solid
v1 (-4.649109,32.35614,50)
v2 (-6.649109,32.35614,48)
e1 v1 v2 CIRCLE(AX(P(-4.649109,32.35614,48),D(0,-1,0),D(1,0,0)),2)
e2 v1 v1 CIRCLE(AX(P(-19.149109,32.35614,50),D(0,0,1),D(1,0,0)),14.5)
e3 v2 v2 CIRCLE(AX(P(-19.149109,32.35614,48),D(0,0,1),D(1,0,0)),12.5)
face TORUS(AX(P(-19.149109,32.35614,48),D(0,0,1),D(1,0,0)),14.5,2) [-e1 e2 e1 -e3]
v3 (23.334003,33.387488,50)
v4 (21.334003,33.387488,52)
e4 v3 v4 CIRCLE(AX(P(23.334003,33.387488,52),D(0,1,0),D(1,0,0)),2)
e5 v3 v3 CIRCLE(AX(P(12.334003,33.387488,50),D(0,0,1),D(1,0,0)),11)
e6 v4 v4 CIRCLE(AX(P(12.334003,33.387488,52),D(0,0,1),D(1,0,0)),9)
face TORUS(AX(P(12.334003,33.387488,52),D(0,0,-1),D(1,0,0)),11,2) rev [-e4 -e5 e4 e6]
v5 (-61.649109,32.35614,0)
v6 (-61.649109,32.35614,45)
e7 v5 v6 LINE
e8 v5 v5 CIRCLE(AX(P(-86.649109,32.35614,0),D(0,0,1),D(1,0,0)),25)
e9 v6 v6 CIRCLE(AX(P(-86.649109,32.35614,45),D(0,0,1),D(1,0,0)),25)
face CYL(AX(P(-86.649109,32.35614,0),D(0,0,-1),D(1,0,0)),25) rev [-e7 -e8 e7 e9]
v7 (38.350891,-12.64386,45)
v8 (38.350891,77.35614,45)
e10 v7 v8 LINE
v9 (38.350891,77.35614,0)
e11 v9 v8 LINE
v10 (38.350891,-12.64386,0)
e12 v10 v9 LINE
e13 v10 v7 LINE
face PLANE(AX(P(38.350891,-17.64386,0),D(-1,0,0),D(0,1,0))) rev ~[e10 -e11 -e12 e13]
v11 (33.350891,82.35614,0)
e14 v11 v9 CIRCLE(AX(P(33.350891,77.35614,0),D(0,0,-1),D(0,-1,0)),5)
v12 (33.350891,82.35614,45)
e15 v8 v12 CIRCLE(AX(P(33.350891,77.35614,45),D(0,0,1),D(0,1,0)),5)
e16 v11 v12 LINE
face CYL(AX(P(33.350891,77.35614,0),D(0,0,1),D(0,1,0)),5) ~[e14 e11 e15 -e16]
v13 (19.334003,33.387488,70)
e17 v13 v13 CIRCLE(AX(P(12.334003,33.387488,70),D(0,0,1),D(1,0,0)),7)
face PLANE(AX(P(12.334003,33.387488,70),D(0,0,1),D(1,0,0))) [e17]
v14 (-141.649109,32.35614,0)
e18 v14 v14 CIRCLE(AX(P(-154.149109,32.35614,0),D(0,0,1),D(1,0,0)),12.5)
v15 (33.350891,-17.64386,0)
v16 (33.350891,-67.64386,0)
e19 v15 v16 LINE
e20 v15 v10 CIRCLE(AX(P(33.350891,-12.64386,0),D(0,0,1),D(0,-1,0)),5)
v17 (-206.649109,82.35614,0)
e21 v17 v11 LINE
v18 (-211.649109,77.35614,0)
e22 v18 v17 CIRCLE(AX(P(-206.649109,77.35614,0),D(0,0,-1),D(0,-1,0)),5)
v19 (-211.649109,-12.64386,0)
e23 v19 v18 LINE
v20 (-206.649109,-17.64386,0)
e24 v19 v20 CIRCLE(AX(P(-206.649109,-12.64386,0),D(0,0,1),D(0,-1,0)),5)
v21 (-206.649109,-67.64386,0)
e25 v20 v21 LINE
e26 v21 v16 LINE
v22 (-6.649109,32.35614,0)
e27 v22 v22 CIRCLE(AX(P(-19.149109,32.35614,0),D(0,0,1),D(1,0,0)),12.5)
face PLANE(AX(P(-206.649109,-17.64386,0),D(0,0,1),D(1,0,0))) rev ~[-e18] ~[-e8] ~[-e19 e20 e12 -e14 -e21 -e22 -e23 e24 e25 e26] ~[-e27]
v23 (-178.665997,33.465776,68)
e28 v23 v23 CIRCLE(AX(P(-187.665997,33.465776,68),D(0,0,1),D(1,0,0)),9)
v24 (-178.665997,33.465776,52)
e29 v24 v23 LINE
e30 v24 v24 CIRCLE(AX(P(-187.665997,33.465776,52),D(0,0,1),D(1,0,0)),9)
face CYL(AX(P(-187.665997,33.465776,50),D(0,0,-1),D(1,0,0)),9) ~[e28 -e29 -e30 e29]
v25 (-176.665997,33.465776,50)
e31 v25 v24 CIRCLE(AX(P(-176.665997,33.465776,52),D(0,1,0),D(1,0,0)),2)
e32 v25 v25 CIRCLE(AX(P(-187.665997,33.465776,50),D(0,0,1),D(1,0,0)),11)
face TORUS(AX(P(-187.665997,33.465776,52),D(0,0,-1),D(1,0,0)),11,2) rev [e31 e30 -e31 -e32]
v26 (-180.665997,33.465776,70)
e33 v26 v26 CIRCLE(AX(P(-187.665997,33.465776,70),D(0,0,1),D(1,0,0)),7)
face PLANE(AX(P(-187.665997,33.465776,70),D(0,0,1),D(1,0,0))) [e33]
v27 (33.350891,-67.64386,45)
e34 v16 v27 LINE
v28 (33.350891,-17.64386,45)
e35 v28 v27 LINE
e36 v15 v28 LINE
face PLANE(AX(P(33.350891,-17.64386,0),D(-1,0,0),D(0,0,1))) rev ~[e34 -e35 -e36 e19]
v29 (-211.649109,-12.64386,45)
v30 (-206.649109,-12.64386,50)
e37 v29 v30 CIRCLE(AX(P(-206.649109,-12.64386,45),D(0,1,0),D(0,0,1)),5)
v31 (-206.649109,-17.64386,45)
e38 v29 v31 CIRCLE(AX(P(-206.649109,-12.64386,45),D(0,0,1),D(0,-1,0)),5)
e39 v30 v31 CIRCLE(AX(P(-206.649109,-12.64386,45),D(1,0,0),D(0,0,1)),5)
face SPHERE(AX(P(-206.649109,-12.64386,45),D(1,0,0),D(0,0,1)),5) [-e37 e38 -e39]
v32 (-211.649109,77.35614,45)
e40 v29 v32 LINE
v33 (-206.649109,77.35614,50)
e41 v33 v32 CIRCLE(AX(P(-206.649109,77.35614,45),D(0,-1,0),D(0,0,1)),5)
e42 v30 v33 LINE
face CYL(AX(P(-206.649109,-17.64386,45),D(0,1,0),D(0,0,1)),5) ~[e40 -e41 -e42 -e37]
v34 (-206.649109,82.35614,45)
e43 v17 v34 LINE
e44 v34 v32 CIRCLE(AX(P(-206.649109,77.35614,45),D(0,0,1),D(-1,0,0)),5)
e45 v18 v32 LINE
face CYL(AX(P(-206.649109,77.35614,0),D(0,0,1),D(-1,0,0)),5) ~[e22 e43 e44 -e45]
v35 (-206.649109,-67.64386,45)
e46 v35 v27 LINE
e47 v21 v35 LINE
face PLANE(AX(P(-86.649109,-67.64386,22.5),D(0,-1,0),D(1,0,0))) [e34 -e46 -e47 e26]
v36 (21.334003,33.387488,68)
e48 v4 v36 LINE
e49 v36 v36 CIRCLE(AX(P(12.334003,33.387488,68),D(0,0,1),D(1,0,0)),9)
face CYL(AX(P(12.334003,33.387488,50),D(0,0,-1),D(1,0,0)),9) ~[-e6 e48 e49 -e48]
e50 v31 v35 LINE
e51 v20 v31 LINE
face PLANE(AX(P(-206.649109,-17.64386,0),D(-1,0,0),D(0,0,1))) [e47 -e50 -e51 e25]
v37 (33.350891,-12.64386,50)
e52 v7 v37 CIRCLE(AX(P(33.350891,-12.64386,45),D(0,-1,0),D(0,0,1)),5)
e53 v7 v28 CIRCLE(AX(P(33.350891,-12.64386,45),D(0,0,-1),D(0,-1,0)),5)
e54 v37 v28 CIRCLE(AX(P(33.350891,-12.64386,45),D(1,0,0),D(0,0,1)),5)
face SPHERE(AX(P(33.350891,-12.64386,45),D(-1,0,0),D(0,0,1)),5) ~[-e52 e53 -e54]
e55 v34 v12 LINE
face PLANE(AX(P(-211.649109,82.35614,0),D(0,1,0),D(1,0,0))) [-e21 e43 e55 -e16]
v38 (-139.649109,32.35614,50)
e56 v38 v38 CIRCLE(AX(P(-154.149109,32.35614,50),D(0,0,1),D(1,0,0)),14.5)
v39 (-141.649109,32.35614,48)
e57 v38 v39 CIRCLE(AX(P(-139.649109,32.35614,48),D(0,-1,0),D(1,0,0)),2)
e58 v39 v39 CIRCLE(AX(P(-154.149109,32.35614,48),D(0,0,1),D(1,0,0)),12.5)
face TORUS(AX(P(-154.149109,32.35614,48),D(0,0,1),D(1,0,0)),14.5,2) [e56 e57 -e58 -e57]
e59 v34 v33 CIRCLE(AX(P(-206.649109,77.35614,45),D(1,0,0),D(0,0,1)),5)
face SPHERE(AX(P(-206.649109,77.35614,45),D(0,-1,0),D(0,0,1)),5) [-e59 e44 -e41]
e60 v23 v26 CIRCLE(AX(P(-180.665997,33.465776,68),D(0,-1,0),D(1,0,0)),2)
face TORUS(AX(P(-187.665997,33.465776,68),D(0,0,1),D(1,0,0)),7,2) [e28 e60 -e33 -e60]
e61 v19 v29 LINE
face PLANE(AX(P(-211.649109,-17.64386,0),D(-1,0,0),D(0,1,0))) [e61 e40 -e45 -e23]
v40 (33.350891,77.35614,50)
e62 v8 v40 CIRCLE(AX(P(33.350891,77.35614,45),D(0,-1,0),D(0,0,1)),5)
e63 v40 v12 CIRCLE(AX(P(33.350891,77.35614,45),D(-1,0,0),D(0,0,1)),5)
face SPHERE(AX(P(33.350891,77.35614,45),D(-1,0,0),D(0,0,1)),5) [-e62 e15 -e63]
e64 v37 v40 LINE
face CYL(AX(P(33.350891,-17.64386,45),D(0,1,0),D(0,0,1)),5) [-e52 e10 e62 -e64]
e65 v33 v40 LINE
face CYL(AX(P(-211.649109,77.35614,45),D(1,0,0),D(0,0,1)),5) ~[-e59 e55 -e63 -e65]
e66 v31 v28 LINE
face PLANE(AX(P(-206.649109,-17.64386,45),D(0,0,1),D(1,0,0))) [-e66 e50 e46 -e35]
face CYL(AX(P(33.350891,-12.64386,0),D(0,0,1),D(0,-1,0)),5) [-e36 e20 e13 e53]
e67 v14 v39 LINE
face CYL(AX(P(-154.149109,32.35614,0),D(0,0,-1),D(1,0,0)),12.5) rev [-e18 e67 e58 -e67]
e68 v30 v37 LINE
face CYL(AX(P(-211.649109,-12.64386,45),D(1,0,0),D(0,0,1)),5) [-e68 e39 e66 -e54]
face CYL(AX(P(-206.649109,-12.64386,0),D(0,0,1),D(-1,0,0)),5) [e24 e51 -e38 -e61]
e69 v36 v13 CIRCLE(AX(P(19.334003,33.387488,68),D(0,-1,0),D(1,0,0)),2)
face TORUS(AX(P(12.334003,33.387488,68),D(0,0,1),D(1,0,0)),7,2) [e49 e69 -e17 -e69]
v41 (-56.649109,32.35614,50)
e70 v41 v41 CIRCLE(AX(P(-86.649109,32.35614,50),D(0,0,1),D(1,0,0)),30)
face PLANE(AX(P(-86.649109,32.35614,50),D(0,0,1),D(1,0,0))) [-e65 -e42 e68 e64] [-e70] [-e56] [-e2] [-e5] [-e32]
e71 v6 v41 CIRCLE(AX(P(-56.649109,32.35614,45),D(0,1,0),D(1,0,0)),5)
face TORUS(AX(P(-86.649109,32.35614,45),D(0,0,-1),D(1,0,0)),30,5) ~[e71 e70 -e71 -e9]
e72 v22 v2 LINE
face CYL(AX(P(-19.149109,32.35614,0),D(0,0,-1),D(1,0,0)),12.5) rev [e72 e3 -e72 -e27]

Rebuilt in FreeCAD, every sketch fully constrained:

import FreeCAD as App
import Part
import Sketcher
Q = App.Units.Quantity


def edges_at(feature, points):
    """Names of the edges that pass closest to the given points."""
    edges = feature.Shape.Edges
    near = lambda p: min(range(len(edges)), key=lambda i: edges[i].distToShape(Part.Vertex(*p))[0])
    return sorted({f"Edge{near(p) + 1}" for p in points})


def add_polygon(sketch, points):
    """Adds a closed chain of lines whose ends are joined by coincident constraints."""
    first, n = sketch.GeometryCount, len(points)
    for a, b in zip(points, points[1:] + points[:1]):
        sketch.addGeometry(Part.LineSegment(App.Vector(*a, 0), App.Vector(*b, 0)), False)
    for i in range(n):
        sketch.addConstraint(Sketcher.Constraint("Coincident", first + i, 2, first + (i + 1) % n, 1))

doc = App.newDocument("Part")
body = doc.addObject("PartDesign::Body", "Body")

# Sketch on XY plane
sketch1 = body.newObject("Sketcher::SketchObject", "Sketch")
sketch1.AttachmentSupport = (doc.getObject("XY_Plane"), [""])
sketch1.MapMode = "FlatFace"
add_polygon(sketch1, [(-211.649109, 82.35614), (-211.649109, -17.64386), (38.350891, -17.64386), (38.350891, 82.35614)])  # lines 0-3
sketch1.addGeometry(Part.Circle(App.Vector(-154.149109, 32.35614, 0), App.Vector(0, 0, 1), 12.5), False)  # 4
sketch1.addGeometry(Part.Circle(App.Vector(-86.649109, 32.35614, 0), App.Vector(0, 0, 1), 25), False)  # 5
sketch1.addGeometry(Part.Circle(App.Vector(-19.149109, 32.35614, 0), App.Vector(0, 0, 1), 12.5), False)  # 6
sketch1.addConstraint(Sketcher.Constraint("Vertical", 0))
sketch1.addConstraint(Sketcher.Constraint("Horizontal", 1))
sketch1.addConstraint(Sketcher.Constraint("Vertical", 2))
sketch1.addConstraint(Sketcher.Constraint("Horizontal", 3))
sketch1.addConstraint(Sketcher.Constraint("Equal", 4, 6))
sketch1.addConstraint(Sketcher.Constraint("Horizontal", 4, 3, 5, 3))
sketch1.addConstraint(Sketcher.Constraint("Horizontal", 5, 3, 6, 3))
sketch1.addConstraint(Sketcher.Constraint("Diameter", 4, Q("25 mm")))
sketch1.addConstraint(Sketcher.Constraint("Diameter", 5, Q("50 mm")))
sketch1.addConstraint(Sketcher.Constraint("DistanceX", 1, 1, 1, 2, Q("250 mm")))
sketch1.addConstraint(Sketcher.Constraint("DistanceY", 0, 2, 0, 1, Q("100 mm")))
sketch1.addConstraint(Sketcher.Constraint("DistanceX", 4, 3, 6, 3, Q("135 mm")))
sketch1.addConstraint(Sketcher.Constraint("DistanceY", 0, 2, 4, 3, Q("50 mm")))
sketch1.addConstraint(Sketcher.Constraint("DistanceX", 0, 2, 5, 3, Q("125 mm")))
sketch1.addConstraint(Sketcher.Constraint("DistanceX", 4, 3, 5, 3, Q("67.5 mm")))
sketch1.addConstraint(Sketcher.Constraint("DistanceX", 4, 3, -1, 1, Q("154.149109 mm")))
sketch1.addConstraint(Sketcher.Constraint("DistanceY", -1, 1, 4, 3, Q("32.35614 mm")))
pad1 = body.newObject("PartDesign::Pad", "Pad")
pad1.Profile = sketch1
pad1.Length = 50
doc.recompute()

fillet = body.newObject("PartDesign::Fillet", "Fillet")
fillet.Base = (pad1, edges_at(pad1, [(-111.649, 32.356, 50)]))
fillet.Radius = 5
doc.recompute()

fillet2 = body.newObject("PartDesign::Fillet", "Fillet001")
fillet2.Base = (fillet, edges_at(fillet, [
    (-86.649, -17.644, 50),
    (-211.649, 32.356, 50),
    (-86.649, 82.356, 50),
    (38.351, 32.356, 50),
    (38.351, -17.644, 25),
    (38.351, 82.356, 25),
    (-211.649, -17.644, 25),
    (-211.649, 82.356, 25),
]))
fillet2.Radius = 5

# Sketch on XY plane
sketch2 = body.newObject("Sketcher::SketchObject", "Sketch001")
sketch2.AttachmentSupport = (doc.getObject("XY_Plane"), [""])
sketch2.MapMode = "FlatFace"
sketch2.AttachmentOffset = App.Placement(App.Vector(0, 0, 50), App.Rotation())
sketch2.addGeometry(Part.Circle(App.Vector(-187.665997, 33.465776, 0), App.Vector(0, 0, 1), 9), False)
sketch2.addGeometry(Part.Circle(App.Vector(12.334003, 33.387488, 0), App.Vector(0, 0, 1), 9), False)
sketch2.addConstraint(Sketcher.Constraint("Equal", 0, 1))
sketch2.addConstraint(Sketcher.Constraint("Diameter", 0, Q("18 mm")))
sketch2.addConstraint(Sketcher.Constraint("DistanceX", 0, 3, 1, 3, Q("200 mm")))
sketch2.addConstraint(Sketcher.Constraint("DistanceY", 1, 3, 0, 3, Q("0.078288 mm")))
sketch2.addConstraint(Sketcher.Constraint("DistanceX", 0, 3, -1, 1, Q("187.665997 mm")))
sketch2.addConstraint(Sketcher.Constraint("DistanceY", -1, 1, 0, 3, Q("33.465776 mm")))
pad2 = body.newObject("PartDesign::Pad", "Pad001")
pad2.Profile = sketch2
pad2.Length = 20
doc.recompute()

fillet3 = body.newObject("PartDesign::Fillet", "Fillet002")
fillet3.Base = (pad2, edges_at(pad2, [
    (-196.666, 33.466, 70),
    (3.334, 33.387, 70),
    (3.334, 33.387, 50),
    (-196.666, 33.466, 50),
]))
fillet3.Radius = 2
doc.recompute()

fillet4 = body.newObject("PartDesign::Fillet", "Fillet003")
fillet4.Base = (fillet3, edges_at(fillet3, [(-166.649, 32.356, 50), (-31.649, 32.356, 50)]))
fillet4.Radius = 2

# Sketch on XZ plane
sketch3 = body.newObject("Sketcher::SketchObject", "Sketch002")
sketch3.AttachmentSupport = (doc.getObject("XZ_Plane"), [""])
sketch3.MapMode = "FlatFace"
sketch3.AttachmentOffset = App.Placement(App.Vector(0, 0, 17.64386), App.Rotation())
add_polygon(sketch3, [(-206.649109, 45), (-206.649109, 0), (33.350891, 0), (33.350891, 45)])  # lines 0-3
sketch3.addConstraint(Sketcher.Constraint("Vertical", 0))
sketch3.addConstraint(Sketcher.Constraint("Horizontal", 1))
sketch3.addConstraint(Sketcher.Constraint("Vertical", 2))
sketch3.addConstraint(Sketcher.Constraint("Horizontal", 3))
sketch3.addConstraint(Sketcher.Constraint("PointOnObject", 0, 2, -1))
sketch3.addConstraint(Sketcher.Constraint("DistanceX", 1, 1, 1, 2, Q("240 mm")))
sketch3.addConstraint(Sketcher.Constraint("DistanceY", 0, 2, 0, 1, Q("45 mm")))
sketch3.addConstraint(Sketcher.Constraint("DistanceX", 0, 2, -1, 1, Q("206.649109 mm")))
pad3 = body.newObject("PartDesign::Pad", "Pad002")
pad3.Profile = sketch3
pad3.Length = 50

doc.recompute()
